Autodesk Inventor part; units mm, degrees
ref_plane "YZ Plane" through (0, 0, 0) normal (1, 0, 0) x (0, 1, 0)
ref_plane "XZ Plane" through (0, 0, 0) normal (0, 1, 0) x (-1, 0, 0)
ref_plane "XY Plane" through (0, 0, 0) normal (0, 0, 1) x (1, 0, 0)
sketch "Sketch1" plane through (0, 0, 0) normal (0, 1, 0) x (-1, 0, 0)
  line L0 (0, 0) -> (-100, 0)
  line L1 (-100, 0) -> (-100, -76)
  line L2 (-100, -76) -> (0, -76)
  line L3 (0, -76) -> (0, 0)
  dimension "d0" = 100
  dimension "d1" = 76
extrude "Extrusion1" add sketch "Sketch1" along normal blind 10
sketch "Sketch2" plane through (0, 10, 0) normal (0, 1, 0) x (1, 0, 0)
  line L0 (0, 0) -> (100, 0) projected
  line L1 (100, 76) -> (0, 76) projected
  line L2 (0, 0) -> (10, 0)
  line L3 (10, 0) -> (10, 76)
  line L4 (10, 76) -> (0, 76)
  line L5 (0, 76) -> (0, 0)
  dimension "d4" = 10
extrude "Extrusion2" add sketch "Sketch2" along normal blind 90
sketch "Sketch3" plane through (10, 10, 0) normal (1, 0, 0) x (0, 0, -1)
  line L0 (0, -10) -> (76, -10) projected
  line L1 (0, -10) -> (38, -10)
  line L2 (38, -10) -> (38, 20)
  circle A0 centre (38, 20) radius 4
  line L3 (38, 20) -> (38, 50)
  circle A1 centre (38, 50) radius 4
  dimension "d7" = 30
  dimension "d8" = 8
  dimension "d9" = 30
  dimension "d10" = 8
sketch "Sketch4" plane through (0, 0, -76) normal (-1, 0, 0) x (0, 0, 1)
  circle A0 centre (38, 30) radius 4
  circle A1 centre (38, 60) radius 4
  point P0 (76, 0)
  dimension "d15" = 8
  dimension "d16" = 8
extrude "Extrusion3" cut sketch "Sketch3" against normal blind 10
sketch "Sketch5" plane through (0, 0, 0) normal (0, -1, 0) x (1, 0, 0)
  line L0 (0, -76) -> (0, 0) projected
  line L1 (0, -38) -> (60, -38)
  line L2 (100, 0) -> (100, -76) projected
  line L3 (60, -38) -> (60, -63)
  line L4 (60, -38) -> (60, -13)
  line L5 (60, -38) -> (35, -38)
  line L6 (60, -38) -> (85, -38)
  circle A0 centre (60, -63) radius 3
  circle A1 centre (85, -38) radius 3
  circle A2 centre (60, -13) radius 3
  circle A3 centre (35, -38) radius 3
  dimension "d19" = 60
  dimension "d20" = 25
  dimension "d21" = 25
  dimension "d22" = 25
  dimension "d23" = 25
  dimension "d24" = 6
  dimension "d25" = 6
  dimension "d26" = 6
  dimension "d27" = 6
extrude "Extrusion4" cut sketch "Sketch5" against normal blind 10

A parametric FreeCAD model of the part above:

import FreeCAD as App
import Part
import Sketcher
Q = App.Units.Quantity


def add_polygon(sketch, points):
    """Adds a closed chain of lines whose ends are joined by coincident constraints."""
    first, n = sketch.GeometryCount, len(points)
    for a, b in zip(points, points[1:] + points[:1]):
        sketch.addGeometry(Part.LineSegment(App.Vector(*a, 0), App.Vector(*b, 0)), False)
    for i in range(n):
        sketch.addConstraint(Sketcher.Constraint("Coincident", first + i, 2, first + (i + 1) % n, 1))

doc = App.newDocument("Part")
body = doc.addObject("PartDesign::Body", "Body")

# Sketch on XZ plane
sketch1 = doc.addObject("Sketcher::SketchObject", "Sketch")
body.addObject(sketch1)
sketch1.AttachmentSupport = (doc.XZ_Plane, [""])
sketch1.MapMode = "FlatFace"
add_polygon(sketch1, [(0, -76), (0, 0), (100, 0), (100, -76)])  # lines 0-3
sketch1.addConstraint(Sketcher.Constraint("Vertical", 0))
sketch1.addConstraint(Sketcher.Constraint("Horizontal", 1))
sketch1.addConstraint(Sketcher.Constraint("Vertical", 2))
sketch1.addConstraint(Sketcher.Constraint("Horizontal", 3))
sketch1.addConstraint(Sketcher.Constraint("Coincident", 0, 2, -1, 1))
sketch1.addConstraint(Sketcher.Constraint("DistanceX", 1, 1, 1, 2, Q("100 mm")))
sketch1.addConstraint(Sketcher.Constraint("DistanceY", 0, 1, 0, 2, Q("76 mm")))
pad1 = doc.addObject("PartDesign::Pad", "Pad")
body.addObject(pad1)
pad1.Profile = sketch1
pad1.Length = 10
pad1.Reversed = True

# Sketch on XZ plane
sketch2 = doc.addObject("Sketcher::SketchObject", "Sketch001")
body.addObject(sketch2)
sketch2.AttachmentSupport = (doc.XZ_Plane, [""])
sketch2.MapMode = "FlatFace"
sketch2.AttachmentOffset = App.Placement(App.Vector(0, 0, -10), App.Rotation())
add_polygon(sketch2, [(0, -76), (0, 0), (10, 0), (10, -76)])  # lines 0-3
sketch2.addConstraint(Sketcher.Constraint("Vertical", 0))
sketch2.addConstraint(Sketcher.Constraint("Horizontal", 1))
sketch2.addConstraint(Sketcher.Constraint("Vertical", 2))
sketch2.addConstraint(Sketcher.Constraint("Horizontal", 3))
sketch2.addConstraint(Sketcher.Constraint("Coincident", 0, 2, -1, 1))
sketch2.addConstraint(Sketcher.Constraint("DistanceX", 1, 1, 1, 2, Q("10 mm")))
sketch2.addConstraint(Sketcher.Constraint("DistanceY", 0, 1, 0, 2, Q("76 mm")))
pad2 = doc.addObject("PartDesign::Pad", "Pad001")
body.addObject(pad2)
pad2.Profile = sketch2
pad2.Length = 90
pad2.Reversed = True

# Sketch on YZ plane
sketch3 = doc.addObject("Sketcher::SketchObject", "Sketch002")
body.addObject(sketch3)
sketch3.AttachmentSupport = (doc.YZ_Plane, [""])
sketch3.MapMode = "FlatFace"
sketch3.AttachmentOffset = App.Placement(App.Vector(0, 0, 10), App.Rotation())
sketch3.addGeometry(Part.Circle(App.Vector(30, -38, 0), App.Vector(0, 0, 1), 4), False)
sketch3.addGeometry(Part.Circle(App.Vector(60, -38, 0), App.Vector(0, 0, 1), 4), False)
sketch3.addConstraint(Sketcher.Constraint("Equal", 0, 1))
sketch3.addConstraint(Sketcher.Constraint("Horizontal", 0, 3, 1, 3))
sketch3.addConstraint(Sketcher.Constraint("Diameter", 0, Q("8 mm")))
sketch3.addConstraint(Sketcher.Constraint("DistanceX", -1, 1, 0, 3, Q("30 mm")))
sketch3.addConstraint(Sketcher.Constraint("DistanceX", 0, 3, 1, 3, Q("30 mm")))
sketch3.addConstraint(Sketcher.Constraint("DistanceY", 0, 3, -1, 1, Q("38 mm")))
pocket1 = doc.addObject("PartDesign::Pocket", "Pocket")
body.addObject(pocket1)
pocket1.Profile = sketch3
pocket1.Length = 10

# Sketch on XZ plane
sketch4 = doc.addObject("Sketcher::SketchObject", "Sketch003")
body.addObject(sketch4)
sketch4.AttachmentSupport = (doc.XZ_Plane, [""])
sketch4.MapMode = "FlatFace"
sketch4.addGeometry(Part.Circle(App.Vector(35, -38, 0), App.Vector(0, 0, 1), 3), False)
sketch4.addGeometry(Part.Circle(App.Vector(60, -13, 0), App.Vector(0, 0, 1), 3), False)
sketch4.addGeometry(Part.Circle(App.Vector(85, -38, 0), App.Vector(0, 0, 1), 3), False)
sketch4.addGeometry(Part.Circle(App.Vector(60, -63, 0), App.Vector(0, 0, 1), 3), False)
sketch4.addConstraint(Sketcher.Constraint("Equal", 0, 1))
sketch4.addConstraint(Sketcher.Constraint("Equal", 1, 2))
sketch4.addConstraint(Sketcher.Constraint("Equal", 2, 3))
sketch4.addConstraint(Sketcher.Constraint("Horizontal", 0, 3, 2, 3))
sketch4.addConstraint(Sketcher.Constraint("Vertical", 1, 3, 3, 3))
sketch4.addConstraint(Sketcher.Constraint("Diameter", 0, Q("6 mm")))
sketch4.addConstraint(Sketcher.Constraint("DistanceX", -1, 1, 1, 3, Q("60 mm")))
sketch4.addConstraint(Sketcher.Constraint("DistanceX", 0, 3, 1, 3, Q("25 mm")))
sketch4.addConstraint(Sketcher.Constraint("DistanceY", 0, 3, 1, 3, Q("25 mm")))
sketch4.addConstraint(Sketcher.Constraint("DistanceX", 1, 3, 2, 3, Q("25 mm")))
sketch4.addConstraint(Sketcher.Constraint("DistanceY", 3, 3, 0, 3, Q("25 mm")))
sketch4.addConstraint(Sketcher.Constraint("DistanceY", 0, 3, -1, 1, Q("38 mm")))
pocket2 = doc.addObject("PartDesign::Pocket", "Pocket001")
body.addObject(pocket2)
pocket2.Profile = sketch4
pocket2.Length = 10

doc.recompute()
